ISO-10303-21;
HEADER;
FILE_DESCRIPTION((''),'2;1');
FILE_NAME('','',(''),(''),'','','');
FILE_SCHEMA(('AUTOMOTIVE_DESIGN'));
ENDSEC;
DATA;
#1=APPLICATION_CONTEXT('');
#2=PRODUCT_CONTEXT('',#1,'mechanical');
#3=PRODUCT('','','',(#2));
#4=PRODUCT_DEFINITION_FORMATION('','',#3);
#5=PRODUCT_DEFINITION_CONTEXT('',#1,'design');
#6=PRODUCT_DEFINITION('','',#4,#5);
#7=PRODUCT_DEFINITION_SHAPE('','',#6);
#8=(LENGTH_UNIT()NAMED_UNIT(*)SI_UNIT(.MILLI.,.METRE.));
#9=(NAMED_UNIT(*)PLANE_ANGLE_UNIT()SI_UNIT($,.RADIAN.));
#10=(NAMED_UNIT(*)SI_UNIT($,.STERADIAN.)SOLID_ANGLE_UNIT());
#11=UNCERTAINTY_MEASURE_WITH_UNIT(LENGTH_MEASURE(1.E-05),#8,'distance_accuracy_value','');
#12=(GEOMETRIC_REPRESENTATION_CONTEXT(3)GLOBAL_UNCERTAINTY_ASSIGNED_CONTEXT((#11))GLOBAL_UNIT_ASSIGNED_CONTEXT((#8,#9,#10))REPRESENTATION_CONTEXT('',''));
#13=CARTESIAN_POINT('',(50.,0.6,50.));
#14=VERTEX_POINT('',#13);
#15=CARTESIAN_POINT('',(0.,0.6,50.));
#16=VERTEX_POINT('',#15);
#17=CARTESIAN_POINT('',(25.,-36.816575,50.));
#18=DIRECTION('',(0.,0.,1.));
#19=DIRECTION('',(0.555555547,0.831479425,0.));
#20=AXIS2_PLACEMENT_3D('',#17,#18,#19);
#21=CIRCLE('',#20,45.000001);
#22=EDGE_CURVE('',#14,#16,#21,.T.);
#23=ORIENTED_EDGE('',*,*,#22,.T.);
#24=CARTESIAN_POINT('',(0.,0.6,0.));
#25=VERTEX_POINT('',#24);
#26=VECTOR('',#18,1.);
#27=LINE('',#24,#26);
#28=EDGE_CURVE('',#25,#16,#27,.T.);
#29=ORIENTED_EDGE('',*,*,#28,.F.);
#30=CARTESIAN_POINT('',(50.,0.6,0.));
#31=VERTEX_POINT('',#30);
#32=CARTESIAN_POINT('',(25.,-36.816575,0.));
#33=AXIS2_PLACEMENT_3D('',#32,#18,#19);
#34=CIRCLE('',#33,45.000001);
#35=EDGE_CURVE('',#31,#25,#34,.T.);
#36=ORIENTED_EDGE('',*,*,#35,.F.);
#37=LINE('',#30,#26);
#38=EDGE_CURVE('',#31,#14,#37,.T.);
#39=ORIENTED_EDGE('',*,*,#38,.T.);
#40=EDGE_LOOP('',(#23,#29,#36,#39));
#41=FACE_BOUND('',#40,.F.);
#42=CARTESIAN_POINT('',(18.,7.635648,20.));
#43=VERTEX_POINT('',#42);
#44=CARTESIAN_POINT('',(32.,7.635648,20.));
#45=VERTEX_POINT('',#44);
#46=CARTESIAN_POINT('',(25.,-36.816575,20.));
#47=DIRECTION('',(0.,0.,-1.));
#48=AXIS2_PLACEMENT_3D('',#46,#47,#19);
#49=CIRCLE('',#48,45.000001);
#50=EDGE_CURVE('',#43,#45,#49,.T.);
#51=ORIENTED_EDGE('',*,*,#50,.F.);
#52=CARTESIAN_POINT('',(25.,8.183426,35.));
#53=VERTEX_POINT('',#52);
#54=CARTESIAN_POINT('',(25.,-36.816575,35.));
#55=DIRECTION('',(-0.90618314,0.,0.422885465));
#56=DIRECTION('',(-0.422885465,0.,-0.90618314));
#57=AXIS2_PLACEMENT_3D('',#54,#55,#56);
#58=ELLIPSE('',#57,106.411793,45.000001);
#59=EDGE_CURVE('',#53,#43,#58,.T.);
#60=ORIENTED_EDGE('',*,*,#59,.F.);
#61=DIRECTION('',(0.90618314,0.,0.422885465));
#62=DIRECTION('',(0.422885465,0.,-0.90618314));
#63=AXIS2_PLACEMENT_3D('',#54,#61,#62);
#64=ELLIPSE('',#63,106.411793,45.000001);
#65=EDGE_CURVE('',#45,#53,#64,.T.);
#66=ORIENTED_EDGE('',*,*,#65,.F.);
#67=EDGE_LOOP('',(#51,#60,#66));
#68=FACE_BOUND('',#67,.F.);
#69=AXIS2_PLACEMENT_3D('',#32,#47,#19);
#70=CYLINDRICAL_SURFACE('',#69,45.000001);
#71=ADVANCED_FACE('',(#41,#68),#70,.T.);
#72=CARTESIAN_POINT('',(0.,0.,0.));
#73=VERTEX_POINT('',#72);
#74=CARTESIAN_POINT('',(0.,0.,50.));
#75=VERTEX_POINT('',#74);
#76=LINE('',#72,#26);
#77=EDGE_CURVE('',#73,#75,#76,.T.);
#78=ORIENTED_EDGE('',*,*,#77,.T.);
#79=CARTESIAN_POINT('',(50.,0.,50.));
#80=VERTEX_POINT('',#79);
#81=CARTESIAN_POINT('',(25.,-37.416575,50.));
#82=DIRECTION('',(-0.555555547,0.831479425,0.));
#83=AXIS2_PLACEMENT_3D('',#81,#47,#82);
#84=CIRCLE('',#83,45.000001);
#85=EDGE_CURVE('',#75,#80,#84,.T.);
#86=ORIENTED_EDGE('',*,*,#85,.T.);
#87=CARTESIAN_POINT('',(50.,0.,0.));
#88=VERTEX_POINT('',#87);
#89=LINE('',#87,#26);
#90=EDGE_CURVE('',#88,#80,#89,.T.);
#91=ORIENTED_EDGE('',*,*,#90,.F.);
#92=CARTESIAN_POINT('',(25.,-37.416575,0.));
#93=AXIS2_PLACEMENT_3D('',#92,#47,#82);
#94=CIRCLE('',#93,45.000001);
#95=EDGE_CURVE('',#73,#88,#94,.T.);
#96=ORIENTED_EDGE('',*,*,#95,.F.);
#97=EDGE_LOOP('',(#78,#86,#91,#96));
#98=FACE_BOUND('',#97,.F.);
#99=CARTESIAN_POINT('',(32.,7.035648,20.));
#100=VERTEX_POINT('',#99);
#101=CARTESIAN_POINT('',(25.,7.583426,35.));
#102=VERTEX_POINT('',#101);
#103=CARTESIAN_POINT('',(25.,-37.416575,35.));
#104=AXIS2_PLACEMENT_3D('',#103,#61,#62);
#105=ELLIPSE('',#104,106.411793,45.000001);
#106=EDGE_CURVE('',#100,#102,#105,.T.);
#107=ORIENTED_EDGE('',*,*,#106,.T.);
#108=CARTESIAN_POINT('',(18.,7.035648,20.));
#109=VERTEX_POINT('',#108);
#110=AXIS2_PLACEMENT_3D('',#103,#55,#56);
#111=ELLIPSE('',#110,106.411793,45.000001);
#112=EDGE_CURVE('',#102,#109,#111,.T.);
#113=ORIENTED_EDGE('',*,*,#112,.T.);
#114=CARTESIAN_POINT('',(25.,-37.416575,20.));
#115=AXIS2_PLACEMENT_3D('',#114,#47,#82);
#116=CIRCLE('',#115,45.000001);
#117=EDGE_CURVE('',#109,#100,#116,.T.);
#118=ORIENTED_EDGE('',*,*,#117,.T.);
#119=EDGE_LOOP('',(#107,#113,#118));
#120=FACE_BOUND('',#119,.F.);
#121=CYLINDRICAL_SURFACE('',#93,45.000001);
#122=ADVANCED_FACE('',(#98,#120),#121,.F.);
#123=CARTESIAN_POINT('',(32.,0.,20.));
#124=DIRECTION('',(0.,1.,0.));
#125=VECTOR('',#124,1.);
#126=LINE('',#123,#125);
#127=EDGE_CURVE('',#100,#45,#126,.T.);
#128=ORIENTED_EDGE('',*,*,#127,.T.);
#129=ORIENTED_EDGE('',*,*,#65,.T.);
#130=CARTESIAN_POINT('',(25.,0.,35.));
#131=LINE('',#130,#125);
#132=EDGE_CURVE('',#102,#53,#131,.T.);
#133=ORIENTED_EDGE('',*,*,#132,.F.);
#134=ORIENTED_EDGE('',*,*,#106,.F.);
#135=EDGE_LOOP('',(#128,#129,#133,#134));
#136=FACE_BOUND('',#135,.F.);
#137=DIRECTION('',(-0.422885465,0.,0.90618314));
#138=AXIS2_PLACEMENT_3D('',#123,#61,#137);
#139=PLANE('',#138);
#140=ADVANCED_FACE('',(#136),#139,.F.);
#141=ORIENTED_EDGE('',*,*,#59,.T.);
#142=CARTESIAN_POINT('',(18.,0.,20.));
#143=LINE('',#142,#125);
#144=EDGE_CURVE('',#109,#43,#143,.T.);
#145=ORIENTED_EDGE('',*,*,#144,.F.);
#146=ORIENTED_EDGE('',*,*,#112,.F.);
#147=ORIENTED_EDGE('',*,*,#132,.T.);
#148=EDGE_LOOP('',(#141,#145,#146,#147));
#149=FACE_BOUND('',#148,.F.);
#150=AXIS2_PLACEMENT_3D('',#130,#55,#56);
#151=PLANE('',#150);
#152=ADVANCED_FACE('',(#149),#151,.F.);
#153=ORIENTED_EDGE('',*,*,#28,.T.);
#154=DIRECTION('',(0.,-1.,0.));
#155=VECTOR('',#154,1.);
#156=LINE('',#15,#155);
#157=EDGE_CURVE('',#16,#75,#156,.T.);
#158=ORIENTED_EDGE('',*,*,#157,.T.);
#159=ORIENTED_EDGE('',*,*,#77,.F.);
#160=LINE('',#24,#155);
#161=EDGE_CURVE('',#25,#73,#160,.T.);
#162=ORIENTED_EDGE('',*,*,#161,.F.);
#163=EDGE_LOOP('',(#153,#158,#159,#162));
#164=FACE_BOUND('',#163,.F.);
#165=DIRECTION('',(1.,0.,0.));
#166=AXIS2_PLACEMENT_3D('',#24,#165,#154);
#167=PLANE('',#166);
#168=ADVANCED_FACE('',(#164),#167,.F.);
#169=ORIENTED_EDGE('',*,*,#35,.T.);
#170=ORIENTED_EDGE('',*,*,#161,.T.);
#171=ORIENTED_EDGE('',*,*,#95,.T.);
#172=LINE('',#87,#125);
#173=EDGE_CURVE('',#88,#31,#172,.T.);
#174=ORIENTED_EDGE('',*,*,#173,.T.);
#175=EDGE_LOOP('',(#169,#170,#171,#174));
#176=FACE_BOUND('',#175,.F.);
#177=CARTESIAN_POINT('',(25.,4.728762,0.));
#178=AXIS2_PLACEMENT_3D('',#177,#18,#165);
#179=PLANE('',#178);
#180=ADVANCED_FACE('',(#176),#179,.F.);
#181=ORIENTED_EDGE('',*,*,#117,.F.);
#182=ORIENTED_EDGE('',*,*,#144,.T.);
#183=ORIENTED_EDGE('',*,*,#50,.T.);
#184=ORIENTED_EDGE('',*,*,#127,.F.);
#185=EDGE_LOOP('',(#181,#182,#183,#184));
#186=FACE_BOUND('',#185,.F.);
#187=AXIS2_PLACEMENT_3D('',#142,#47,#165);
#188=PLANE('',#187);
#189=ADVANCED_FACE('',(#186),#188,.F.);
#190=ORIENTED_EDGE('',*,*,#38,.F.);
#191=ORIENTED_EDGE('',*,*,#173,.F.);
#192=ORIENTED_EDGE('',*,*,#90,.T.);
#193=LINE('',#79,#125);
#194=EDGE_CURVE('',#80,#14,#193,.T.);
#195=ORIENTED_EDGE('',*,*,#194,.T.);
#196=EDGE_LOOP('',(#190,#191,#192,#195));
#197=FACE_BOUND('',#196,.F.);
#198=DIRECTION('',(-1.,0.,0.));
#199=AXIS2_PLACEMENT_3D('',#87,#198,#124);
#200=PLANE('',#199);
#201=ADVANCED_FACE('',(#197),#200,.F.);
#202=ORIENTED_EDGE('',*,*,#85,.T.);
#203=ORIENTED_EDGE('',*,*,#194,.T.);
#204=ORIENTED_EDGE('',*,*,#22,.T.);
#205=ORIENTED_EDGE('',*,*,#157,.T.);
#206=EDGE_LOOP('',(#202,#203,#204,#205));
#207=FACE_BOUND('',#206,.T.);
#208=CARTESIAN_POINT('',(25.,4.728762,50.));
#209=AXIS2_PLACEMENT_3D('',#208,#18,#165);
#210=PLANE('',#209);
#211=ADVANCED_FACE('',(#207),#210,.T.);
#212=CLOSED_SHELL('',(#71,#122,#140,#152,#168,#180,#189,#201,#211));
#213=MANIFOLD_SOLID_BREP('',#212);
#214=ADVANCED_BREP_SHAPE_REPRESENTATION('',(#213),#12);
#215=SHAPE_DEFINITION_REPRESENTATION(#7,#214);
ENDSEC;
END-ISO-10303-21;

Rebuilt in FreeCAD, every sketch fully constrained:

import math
import FreeCAD as App
import Part
import Sketcher

V = App.Vector
Q = App.Units.Quantity

doc = App.newDocument("Part")
params = doc.addObject("Spreadsheet::Sheet", "Params")
for row, (alias, value) in enumerate([
    ("sketch1_radius", "45.000001 mm"),
    ("sketch1_height", "0.6 mm"),
    ("pad1_length", "50 mm"),
    ("sketch2_width", "14 mm"),
    ("pocket1_length", "25 mm"),
], start=1):
    params.set(f"A{row}", alias)
    params.set(f"B{row}", "=" + value)
    params.setAlias(f"B{row}", alias)

body = doc.addObject("PartDesign::Body", "Body")

# Sketch on XY plane
sketch1 = body.newObject("Sketcher::SketchObject", "Sketch")
sketch1.AttachmentSupport = (doc.getObject("XY_Plane"), [""])
sketch1.MapMode = "FlatFace"
sketch1.addGeometry([
    Part.ArcOfCircle(Part.Circle(V(25, -37.4, 0), V(0, 0, 1), 45), math.radians(56), math.radians(124)),
    Part.LineSegment(V(50, 0, 0), V(50, 0.6, 0)),
    Part.ArcOfCircle(Part.Circle(V(25, -36.8, 0), V(0, 0, 1), 45), math.radians(56), math.radians(124)),
    Part.LineSegment(V(0, 0.6, 0), V(0, 0, 0)),
], False)
sketch1.addConstraint([
    Sketcher.Constraint("Coincident", 0, 1, 1, 1),
    Sketcher.Constraint("Coincident", 1, 2, 2, 1),
    Sketcher.Constraint("Coincident", 2, 2, 3, 1),
    Sketcher.Constraint("Coincident", 3, 2, 0, 2),
    Sketcher.Constraint("Vertical", 1),
    Sketcher.Constraint("Vertical", 3),
    Sketcher.Constraint("Coincident", 3, 2, -1, 1),
    Sketcher.Constraint("Equal", 0, 2),
    Sketcher.Constraint("PointOnObject", 0, 1, -1),
    Sketcher.Constraint("Horizontal", 1, 2, 2, 2),
    Sketcher.Constraint("Radius", 0, Q("45.000001 mm")),
    Sketcher.Constraint("DistanceY", 1, 1, 1, 2, Q("0.6 mm")),
    Sketcher.Constraint("DistanceX", -1, 1, 0, 3, Q("25 mm")),
])
sketch1.setExpression("Constraints[10]", "Params.sketch1_radius")
sketch1.setExpression("Constraints[11]", "Params.sketch1_height")
pad1 = body.newObject("PartDesign::Pad", "Pad")
pad1.Profile = sketch1
pad1.setExpression("Length", "Params.pad1_length")

# Sketch on XZ plane
sketch2 = body.newObject("Sketcher::SketchObject", "Sketch001")
sketch2.AttachmentSupport = (doc.getObject("XZ_Plane"), [""])
sketch2.MapMode = "FlatFace"
sketch2.addGeometry([
    Part.LineSegment(V(25, 35, 0), V(18, 20, 0)),
    Part.LineSegment(V(18, 20, 0), V(32, 20, 0)),
    Part.LineSegment(V(32, 20, 0), V(25, 35, 0)),
], False)
sketch2.addConstraint([
    Sketcher.Constraint("Coincident", 0, 2, 1, 1),
    Sketcher.Constraint("Coincident", 1, 2, 2, 1),
    Sketcher.Constraint("Coincident", 2, 2, 0, 1),
    Sketcher.Constraint("Horizontal", 1),
    Sketcher.Constraint("Equal", 0, 2),
    Sketcher.Constraint("DistanceX", 1, 1, 1, 2, Q("14 mm")),
    Sketcher.Constraint("DistanceX", -1, 1, 0, 2, Q("18 mm")),
    Sketcher.Constraint("DistanceY", -1, 1, 0, 2, Q("20 mm")),
    Sketcher.Constraint("DistanceY", -1, 1, 2, 2, Q("35 mm")),
])
sketch2.setExpression("Constraints[5]", "Params.sketch2_width")
pocket1 = body.newObject("PartDesign::Pocket", "Pocket")
pocket1.Profile = sketch2
pocket1.setExpression("Length", "Params.pocket1_length")

doc.recompute()
